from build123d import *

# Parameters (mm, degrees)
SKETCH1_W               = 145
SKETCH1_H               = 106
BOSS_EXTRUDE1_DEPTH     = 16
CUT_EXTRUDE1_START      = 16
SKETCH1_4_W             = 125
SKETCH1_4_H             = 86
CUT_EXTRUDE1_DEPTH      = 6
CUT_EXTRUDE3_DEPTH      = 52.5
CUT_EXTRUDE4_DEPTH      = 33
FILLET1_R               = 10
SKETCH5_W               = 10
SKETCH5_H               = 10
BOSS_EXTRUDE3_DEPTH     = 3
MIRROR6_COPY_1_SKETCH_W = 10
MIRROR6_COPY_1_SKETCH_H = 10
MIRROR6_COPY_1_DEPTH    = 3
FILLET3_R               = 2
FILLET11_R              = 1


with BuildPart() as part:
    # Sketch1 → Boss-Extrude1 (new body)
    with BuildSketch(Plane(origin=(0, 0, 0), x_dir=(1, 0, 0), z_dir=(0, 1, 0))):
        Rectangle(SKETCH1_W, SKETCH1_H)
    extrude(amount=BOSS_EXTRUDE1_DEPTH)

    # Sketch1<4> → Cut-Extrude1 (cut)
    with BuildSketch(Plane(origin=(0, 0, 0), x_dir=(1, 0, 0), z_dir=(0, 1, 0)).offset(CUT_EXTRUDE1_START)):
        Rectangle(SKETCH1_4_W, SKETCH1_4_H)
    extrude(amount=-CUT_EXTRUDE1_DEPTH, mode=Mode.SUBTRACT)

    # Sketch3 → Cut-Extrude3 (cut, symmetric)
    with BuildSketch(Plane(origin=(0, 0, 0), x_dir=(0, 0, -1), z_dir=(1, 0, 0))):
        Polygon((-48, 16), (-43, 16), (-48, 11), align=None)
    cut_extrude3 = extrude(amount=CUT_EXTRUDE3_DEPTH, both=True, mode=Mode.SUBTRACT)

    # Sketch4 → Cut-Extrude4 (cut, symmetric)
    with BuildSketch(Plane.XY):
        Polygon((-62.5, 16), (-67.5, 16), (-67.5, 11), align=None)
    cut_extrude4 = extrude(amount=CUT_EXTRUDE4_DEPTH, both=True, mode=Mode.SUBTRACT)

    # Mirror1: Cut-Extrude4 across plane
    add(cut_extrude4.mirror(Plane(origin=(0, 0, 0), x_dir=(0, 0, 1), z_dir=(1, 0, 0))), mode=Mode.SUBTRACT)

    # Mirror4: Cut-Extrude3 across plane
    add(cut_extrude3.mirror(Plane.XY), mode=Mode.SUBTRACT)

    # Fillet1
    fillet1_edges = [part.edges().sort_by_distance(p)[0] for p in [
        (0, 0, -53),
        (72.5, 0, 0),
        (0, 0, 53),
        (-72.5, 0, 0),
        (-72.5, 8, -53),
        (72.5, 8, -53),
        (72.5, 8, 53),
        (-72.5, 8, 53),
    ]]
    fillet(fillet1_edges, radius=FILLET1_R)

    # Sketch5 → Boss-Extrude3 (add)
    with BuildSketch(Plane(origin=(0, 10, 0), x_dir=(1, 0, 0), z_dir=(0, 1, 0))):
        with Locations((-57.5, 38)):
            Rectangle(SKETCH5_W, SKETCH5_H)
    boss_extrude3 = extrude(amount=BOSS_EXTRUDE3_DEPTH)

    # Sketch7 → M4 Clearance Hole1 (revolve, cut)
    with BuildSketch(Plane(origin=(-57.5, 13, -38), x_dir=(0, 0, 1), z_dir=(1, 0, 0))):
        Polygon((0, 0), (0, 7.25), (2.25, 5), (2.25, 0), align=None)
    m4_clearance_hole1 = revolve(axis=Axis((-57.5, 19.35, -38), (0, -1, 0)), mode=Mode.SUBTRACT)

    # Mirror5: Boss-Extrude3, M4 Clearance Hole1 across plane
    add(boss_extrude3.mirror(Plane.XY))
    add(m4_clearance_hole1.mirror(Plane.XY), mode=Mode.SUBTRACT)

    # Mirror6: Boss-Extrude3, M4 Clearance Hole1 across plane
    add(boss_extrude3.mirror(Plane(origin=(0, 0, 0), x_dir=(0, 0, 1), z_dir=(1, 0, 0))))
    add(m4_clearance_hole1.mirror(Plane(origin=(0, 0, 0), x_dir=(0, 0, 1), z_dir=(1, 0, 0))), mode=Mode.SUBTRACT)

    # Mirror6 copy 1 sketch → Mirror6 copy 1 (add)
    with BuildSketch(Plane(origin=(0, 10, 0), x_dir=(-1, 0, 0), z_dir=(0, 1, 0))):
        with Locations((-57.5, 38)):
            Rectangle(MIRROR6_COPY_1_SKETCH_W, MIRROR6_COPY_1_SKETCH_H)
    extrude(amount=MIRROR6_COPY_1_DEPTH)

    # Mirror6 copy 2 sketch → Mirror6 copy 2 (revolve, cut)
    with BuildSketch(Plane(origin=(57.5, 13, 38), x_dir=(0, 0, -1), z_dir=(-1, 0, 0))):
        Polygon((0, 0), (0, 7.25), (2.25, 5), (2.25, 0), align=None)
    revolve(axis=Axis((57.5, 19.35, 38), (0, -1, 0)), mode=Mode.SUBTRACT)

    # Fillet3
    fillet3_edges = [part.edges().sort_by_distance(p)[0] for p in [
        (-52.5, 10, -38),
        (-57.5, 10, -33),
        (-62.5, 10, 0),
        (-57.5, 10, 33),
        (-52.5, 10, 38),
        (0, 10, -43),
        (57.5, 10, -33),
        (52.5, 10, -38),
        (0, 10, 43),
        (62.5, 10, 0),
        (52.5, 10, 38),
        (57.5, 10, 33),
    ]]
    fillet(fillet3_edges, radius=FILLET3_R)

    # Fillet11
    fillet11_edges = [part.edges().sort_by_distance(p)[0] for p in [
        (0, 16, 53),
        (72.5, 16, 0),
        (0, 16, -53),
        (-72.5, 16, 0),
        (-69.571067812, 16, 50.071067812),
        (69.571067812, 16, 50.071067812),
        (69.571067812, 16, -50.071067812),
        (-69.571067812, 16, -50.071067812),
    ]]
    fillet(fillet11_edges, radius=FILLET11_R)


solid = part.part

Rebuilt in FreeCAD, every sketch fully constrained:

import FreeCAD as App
import Part
import Sketcher
Q = App.Units.Quantity


def edges_at(feature, points):
    """Names of the edges that pass closest to the given points."""
    edges = feature.Shape.Edges
    near = lambda p: min(range(len(edges)), key=lambda i: edges[i].distToShape(Part.Vertex(*p))[0])
    return sorted({f"Edge{near(p) + 1}" for p in points})


def add_polygon(sketch, points):
    """Adds a closed chain of lines whose ends are joined by coincident constraints."""
    first, n = sketch.GeometryCount, len(points)
    for a, b in zip(points, points[1:] + points[:1]):
        sketch.addGeometry(Part.LineSegment(App.Vector(*a, 0), App.Vector(*b, 0)), False)
    for i in range(n):
        sketch.addConstraint(Sketcher.Constraint("Coincident", first + i, 2, first + (i + 1) % n, 1))

doc = App.newDocument("Part")
body = doc.addObject("PartDesign::Body", "Body")

# Sketch on XZ plane
sketch1 = body.newObject("Sketcher::SketchObject", "Sketch")
sketch1.AttachmentSupport = (doc.getObject("XZ_Plane"), [""])
sketch1.MapMode = "FlatFace"
add_polygon(sketch1, [(-72.5, -53), (-72.5, 53), (72.5, 53), (72.5, -53)])  # lines 0-3
sketch1.addConstraint([
    Sketcher.Constraint("Vertical", 0),
    Sketcher.Constraint("Horizontal", 1),
    Sketcher.Constraint("Vertical", 2),
    Sketcher.Constraint("Horizontal", 3),
    Sketcher.Constraint("Symmetric", 0, 2, 2, 2, -1, 1),
    Sketcher.Constraint("DistanceX", 1, 1, 1, 2, Q("145 mm")),
    Sketcher.Constraint("DistanceY", 0, 1, 0, 2, Q("106 mm")),
])
pad1 = body.newObject("PartDesign::Pad", "Pad")
pad1.Profile = sketch1
pad1.Length = 16
pad1.Reversed = True

# Sketch on XZ plane
sketch2 = body.newObject("Sketcher::SketchObject", "Sketch001")
sketch2.AttachmentSupport = (doc.getObject("XZ_Plane"), [""])
sketch2.MapMode = "FlatFace"
sketch2.AttachmentOffset = App.Placement(App.Vector(0, 0, -16), App.Rotation())
add_polygon(sketch2, [(-62.5, -43), (-62.5, 43), (62.5, 43), (62.5, -43)])  # lines 0-3
sketch2.addConstraint([
    Sketcher.Constraint("Vertical", 0),
    Sketcher.Constraint("Horizontal", 1),
    Sketcher.Constraint("Vertical", 2),
    Sketcher.Constraint("Horizontal", 3),
    Sketcher.Constraint("Symmetric", 0, 2, 2, 2, -1, 1),
    Sketcher.Constraint("DistanceX", 1, 1, 1, 2, Q("125 mm")),
    Sketcher.Constraint("DistanceY", 0, 1, 0, 2, Q("86 mm")),
])
pocket1 = body.newObject("PartDesign::Pocket", "Pocket")
pocket1.Profile = sketch2
pocket1.Length = 6
pocket1.Reversed = True

# Sketch on YZ plane
sketch3 = body.newObject("Sketcher::SketchObject", "Sketch002")
sketch3.AttachmentSupport = (doc.getObject("YZ_Plane"), [""])
sketch3.MapMode = "FlatFace"
add_polygon(sketch3, [(16, 43), (16, 48), (11, 48)])  # lines 0-2
sketch3.addConstraint([
    Sketcher.Constraint("Vertical", 0),
    Sketcher.Constraint("Horizontal", 1),
    Sketcher.Constraint("Equal", 1, 0),
    Sketcher.Constraint("DistanceX", 1, 2, 1, 1, Q("5 mm")),
    Sketcher.Constraint("DistanceX", -1, 1, 0, 2, Q("16 mm")),
    Sketcher.Constraint("DistanceY", -1, 1, 0, 2, Q("48 mm")),
])
pocket2 = body.newObject("PartDesign::Pocket", "Pocket001")
pocket2.Profile = sketch3
pocket2.Length = 105
pocket2.Midplane = True

# Sketch on XY plane
sketch4 = body.newObject("Sketcher::SketchObject", "Sketch003")
sketch4.AttachmentSupport = (doc.getObject("XY_Plane"), [""])
sketch4.MapMode = "FlatFace"
add_polygon(sketch4, [(-62.5, 16), (-67.5, 16), (-67.5, 11)])  # lines 0-2
sketch4.addConstraint([
    Sketcher.Constraint("Horizontal", 0),
    Sketcher.Constraint("Vertical", 1),
    Sketcher.Constraint("Equal", 0, 1),
    Sketcher.Constraint("DistanceX", 0, 2, 0, 1, Q("5 mm")),
    Sketcher.Constraint("DistanceY", -1, 1, 0, 2, Q("16 mm")),
    Sketcher.Constraint("DistanceX", 0, 2, -1, 1, Q("67.5 mm")),
])
pocket3 = body.newObject("PartDesign::Pocket", "Pocket002")
pocket3.Profile = sketch4
pocket3.Length = 66
pocket3.Midplane = True
doc.recompute()

mirrored = body.newObject("PartDesign::Mirrored", "Mirrored")
mirrored.Originals = [pocket3]
mirrored.MirrorPlane = (doc.getObject("YZ_Plane"), [""])
body.Tip = mirrored
doc.recompute()

mirrored2 = body.newObject("PartDesign::Mirrored", "Mirrored001")
mirrored2.Originals = [pocket2]
mirrored2.MirrorPlane = (doc.getObject("XY_Plane"), [""])
body.Tip = mirrored2
doc.recompute()

fillet = body.newObject("PartDesign::Fillet", "Fillet")
fillet.Base = (mirrored2, edges_at(mirrored2, [
    (0, 0, -53),
    (72.5, 0, 0),
    (0, 0, 53),
    (-72.5, 0, 0),
    (-72.5, 8, -53),
    (72.5, 8, -53),
    (72.5, 8, 53),
    (-72.5, 8, 53),
]))
fillet.Radius = 10

# Sketch on XZ plane
sketch5 = body.newObject("Sketcher::SketchObject", "Sketch004")
sketch5.AttachmentSupport = (doc.getObject("XZ_Plane"), [""])
sketch5.MapMode = "FlatFace"
sketch5.AttachmentOffset = App.Placement(App.Vector(0, 0, -10), App.Rotation())
add_polygon(sketch5, [(-62.5, -43), (-62.5, -33), (-52.5, -33), (-52.5, -43)])  # lines 0-3
sketch5.addConstraint([
    Sketcher.Constraint("Vertical", 0),
    Sketcher.Constraint("Horizontal", 1),
    Sketcher.Constraint("Vertical", 2),
    Sketcher.Constraint("Horizontal", 3),
    Sketcher.Constraint("Equal", 3, 0),
    Sketcher.Constraint("DistanceX", 1, 1, 1, 2, Q("10 mm")),
    Sketcher.Constraint("DistanceY", 0, 2, -1, 1, Q("33 mm")),
    Sketcher.Constraint("DistanceX", 0, 2, -1, 1, Q("62.5 mm")),
])
pad2 = body.newObject("PartDesign::Pad", "Pad001")
pad2.Profile = sketch5
pad2.Length = 3
pad2.Reversed = True

# Sketch on YZ plane
sketch6 = body.newObject("Sketcher::SketchObject", "Sketch005")
sketch6.AttachmentSupport = (doc.getObject("YZ_Plane"), [""])
sketch6.MapMode = "FlatFace"
sketch6.AttachmentOffset = App.Placement(App.Vector(0, 0, -57.5), App.Rotation())
add_polygon(sketch6, [(5.75, -38), (13, -38), (13, -35.75), (8, -35.75)])  # lines 0-3
sketch6.addGeometry(Part.LineSegment(App.Vector(13, -38, 0), App.Vector(5.75, -38, 0)), True)  # axis
sketch6.addConstraint([
    Sketcher.Constraint("Horizontal", 0),
    Sketcher.Constraint("Vertical", 1),
    Sketcher.Constraint("Horizontal", 2),
    Sketcher.Constraint("Horizontal", 4),
    Sketcher.Constraint("Coincident", 4, 1, 0, 2),
    Sketcher.Constraint("Equal", 0, 4),
    Sketcher.Constraint("DistanceX", 2, 2, 2, 1, Q("5 mm")),
    Sketcher.Constraint("Angle", 3, Q("-135 deg")),
    Sketcher.Constraint("DistanceX", -1, 1, 0, 2, Q("13 mm")),
    Sketcher.Constraint("DistanceY", 0, 2, -1, 1, Q("38 mm")),
    Sketcher.Constraint("DistanceX", 0, 1, 0, 2, Q("7.25 mm")),
])
groove = body.newObject("PartDesign::Groove", "Groove")
groove.Profile = sketch6
groove.ReferenceAxis = (sketch6, ["Axis0"])
groove.Angle = 360
doc.recompute()

mirrored3 = body.newObject("PartDesign::Mirrored", "Mirrored002")
mirrored3.Originals = [pad2, groove]
mirrored3.MirrorPlane = (doc.getObject("XY_Plane"), [""])
body.Tip = mirrored3
doc.recompute()

mirrored4 = body.newObject("PartDesign::Mirrored", "Mirrored003")
mirrored4.Originals = [pad2, groove]
mirrored4.MirrorPlane = (doc.getObject("YZ_Plane"), [""])
body.Tip = mirrored4

# Sketch on XZ plane
sketch7 = body.newObject("Sketcher::SketchObject", "Sketch006")
sketch7.AttachmentSupport = (doc.getObject("XZ_Plane"), [""])
sketch7.MapMode = "FlatFace"
sketch7.AttachmentOffset = App.Placement(App.Vector(0, 0, -10), App.Rotation())
add_polygon(sketch7, [(62.5, 43), (62.5, 33), (52.5, 33), (52.5, 43)])  # lines 0-3
sketch7.addConstraint([
    Sketcher.Constraint("Vertical", 0),
    Sketcher.Constraint("Horizontal", 1),
    Sketcher.Constraint("Vertical", 2),
    Sketcher.Constraint("Horizontal", 3),
    Sketcher.Constraint("Equal", 3, 0),
    Sketcher.Constraint("DistanceX", 1, 2, 1, 1, Q("10 mm")),
    Sketcher.Constraint("DistanceY", -1, 1, 0, 2, Q("33 mm")),
    Sketcher.Constraint("DistanceX", -1, 1, 0, 2, Q("62.5 mm")),
])
pad3 = body.newObject("PartDesign::Pad", "Pad002")
pad3.Profile = sketch7
pad3.Length = 3
pad3.Reversed = True

# Sketch on YZ plane
sketch8 = body.newObject("Sketcher::SketchObject", "Sketch007")
sketch8.AttachmentSupport = (doc.getObject("YZ_Plane"), [""])
sketch8.MapMode = "FlatFace"
sketch8.AttachmentOffset = App.Placement(App.Vector(0, 0, 57.5), App.Rotation())
add_polygon(sketch8, [(5.75, 38), (13, 38), (13, 35.75), (8, 35.75)])  # lines 0-3
sketch8.addGeometry(Part.LineSegment(App.Vector(13, 38, 0), App.Vector(5.75, 38, 0)), True)  # axis
sketch8.addConstraint([
    Sketcher.Constraint("Horizontal", 0),
    Sketcher.Constraint("Vertical", 1),
    Sketcher.Constraint("Horizontal", 2),
    Sketcher.Constraint("Horizontal", 4),
    Sketcher.Constraint("Coincident", 4, 1, 0, 2),
    Sketcher.Constraint("Equal", 0, 4),
    Sketcher.Constraint("DistanceX", 2, 2, 2, 1, Q("5 mm")),
    Sketcher.Constraint("Angle", 3, Q("135 deg")),
    Sketcher.Constraint("DistanceX", -1, 1, 0, 2, Q("13 mm")),
    Sketcher.Constraint("DistanceY", -1, 1, 0, 2, Q("38 mm")),
    Sketcher.Constraint("DistanceX", 0, 1, 0, 2, Q("7.25 mm")),
])
groove2 = body.newObject("PartDesign::Groove", "Groove001")
groove2.Profile = sketch8
groove2.ReferenceAxis = (sketch8, ["Axis0"])
groove2.Angle = 360
doc.recompute()

fillet2 = body.newObject("PartDesign::Fillet", "Fillet001")
fillet2.Base = (groove2, edges_at(groove2, [
    (-52.5, 10, -38),
    (-57.5, 10, -33),
    (-62.5, 10, 0),
    (-57.5, 10, 33),
    (-52.5, 10, 38),
    (0, 10, -43),
    (57.5, 10, -33),
    (52.5, 10, -38),
    (0, 10, 43),
    (62.5, 10, 0),
    (52.5, 10, 38),
    (57.5, 10, 33),
]))
fillet2.Radius = 2
doc.recompute()

fillet3 = body.newObject("PartDesign::Fillet", "Fillet002")
fillet3.Base = (fillet2, edges_at(fillet2, [
    (0, 16, 53),
    (72.5, 16, 0),
    (0, 16, -53),
    (-72.5, 16, 0),
    (-69.571, 16, 50.071),
    (69.571, 16, 50.071),
    (69.571, 16, -50.071),
    (-69.571, 16, -50.071),
]))
fillet3.Radius = 1

doc.recompute()
